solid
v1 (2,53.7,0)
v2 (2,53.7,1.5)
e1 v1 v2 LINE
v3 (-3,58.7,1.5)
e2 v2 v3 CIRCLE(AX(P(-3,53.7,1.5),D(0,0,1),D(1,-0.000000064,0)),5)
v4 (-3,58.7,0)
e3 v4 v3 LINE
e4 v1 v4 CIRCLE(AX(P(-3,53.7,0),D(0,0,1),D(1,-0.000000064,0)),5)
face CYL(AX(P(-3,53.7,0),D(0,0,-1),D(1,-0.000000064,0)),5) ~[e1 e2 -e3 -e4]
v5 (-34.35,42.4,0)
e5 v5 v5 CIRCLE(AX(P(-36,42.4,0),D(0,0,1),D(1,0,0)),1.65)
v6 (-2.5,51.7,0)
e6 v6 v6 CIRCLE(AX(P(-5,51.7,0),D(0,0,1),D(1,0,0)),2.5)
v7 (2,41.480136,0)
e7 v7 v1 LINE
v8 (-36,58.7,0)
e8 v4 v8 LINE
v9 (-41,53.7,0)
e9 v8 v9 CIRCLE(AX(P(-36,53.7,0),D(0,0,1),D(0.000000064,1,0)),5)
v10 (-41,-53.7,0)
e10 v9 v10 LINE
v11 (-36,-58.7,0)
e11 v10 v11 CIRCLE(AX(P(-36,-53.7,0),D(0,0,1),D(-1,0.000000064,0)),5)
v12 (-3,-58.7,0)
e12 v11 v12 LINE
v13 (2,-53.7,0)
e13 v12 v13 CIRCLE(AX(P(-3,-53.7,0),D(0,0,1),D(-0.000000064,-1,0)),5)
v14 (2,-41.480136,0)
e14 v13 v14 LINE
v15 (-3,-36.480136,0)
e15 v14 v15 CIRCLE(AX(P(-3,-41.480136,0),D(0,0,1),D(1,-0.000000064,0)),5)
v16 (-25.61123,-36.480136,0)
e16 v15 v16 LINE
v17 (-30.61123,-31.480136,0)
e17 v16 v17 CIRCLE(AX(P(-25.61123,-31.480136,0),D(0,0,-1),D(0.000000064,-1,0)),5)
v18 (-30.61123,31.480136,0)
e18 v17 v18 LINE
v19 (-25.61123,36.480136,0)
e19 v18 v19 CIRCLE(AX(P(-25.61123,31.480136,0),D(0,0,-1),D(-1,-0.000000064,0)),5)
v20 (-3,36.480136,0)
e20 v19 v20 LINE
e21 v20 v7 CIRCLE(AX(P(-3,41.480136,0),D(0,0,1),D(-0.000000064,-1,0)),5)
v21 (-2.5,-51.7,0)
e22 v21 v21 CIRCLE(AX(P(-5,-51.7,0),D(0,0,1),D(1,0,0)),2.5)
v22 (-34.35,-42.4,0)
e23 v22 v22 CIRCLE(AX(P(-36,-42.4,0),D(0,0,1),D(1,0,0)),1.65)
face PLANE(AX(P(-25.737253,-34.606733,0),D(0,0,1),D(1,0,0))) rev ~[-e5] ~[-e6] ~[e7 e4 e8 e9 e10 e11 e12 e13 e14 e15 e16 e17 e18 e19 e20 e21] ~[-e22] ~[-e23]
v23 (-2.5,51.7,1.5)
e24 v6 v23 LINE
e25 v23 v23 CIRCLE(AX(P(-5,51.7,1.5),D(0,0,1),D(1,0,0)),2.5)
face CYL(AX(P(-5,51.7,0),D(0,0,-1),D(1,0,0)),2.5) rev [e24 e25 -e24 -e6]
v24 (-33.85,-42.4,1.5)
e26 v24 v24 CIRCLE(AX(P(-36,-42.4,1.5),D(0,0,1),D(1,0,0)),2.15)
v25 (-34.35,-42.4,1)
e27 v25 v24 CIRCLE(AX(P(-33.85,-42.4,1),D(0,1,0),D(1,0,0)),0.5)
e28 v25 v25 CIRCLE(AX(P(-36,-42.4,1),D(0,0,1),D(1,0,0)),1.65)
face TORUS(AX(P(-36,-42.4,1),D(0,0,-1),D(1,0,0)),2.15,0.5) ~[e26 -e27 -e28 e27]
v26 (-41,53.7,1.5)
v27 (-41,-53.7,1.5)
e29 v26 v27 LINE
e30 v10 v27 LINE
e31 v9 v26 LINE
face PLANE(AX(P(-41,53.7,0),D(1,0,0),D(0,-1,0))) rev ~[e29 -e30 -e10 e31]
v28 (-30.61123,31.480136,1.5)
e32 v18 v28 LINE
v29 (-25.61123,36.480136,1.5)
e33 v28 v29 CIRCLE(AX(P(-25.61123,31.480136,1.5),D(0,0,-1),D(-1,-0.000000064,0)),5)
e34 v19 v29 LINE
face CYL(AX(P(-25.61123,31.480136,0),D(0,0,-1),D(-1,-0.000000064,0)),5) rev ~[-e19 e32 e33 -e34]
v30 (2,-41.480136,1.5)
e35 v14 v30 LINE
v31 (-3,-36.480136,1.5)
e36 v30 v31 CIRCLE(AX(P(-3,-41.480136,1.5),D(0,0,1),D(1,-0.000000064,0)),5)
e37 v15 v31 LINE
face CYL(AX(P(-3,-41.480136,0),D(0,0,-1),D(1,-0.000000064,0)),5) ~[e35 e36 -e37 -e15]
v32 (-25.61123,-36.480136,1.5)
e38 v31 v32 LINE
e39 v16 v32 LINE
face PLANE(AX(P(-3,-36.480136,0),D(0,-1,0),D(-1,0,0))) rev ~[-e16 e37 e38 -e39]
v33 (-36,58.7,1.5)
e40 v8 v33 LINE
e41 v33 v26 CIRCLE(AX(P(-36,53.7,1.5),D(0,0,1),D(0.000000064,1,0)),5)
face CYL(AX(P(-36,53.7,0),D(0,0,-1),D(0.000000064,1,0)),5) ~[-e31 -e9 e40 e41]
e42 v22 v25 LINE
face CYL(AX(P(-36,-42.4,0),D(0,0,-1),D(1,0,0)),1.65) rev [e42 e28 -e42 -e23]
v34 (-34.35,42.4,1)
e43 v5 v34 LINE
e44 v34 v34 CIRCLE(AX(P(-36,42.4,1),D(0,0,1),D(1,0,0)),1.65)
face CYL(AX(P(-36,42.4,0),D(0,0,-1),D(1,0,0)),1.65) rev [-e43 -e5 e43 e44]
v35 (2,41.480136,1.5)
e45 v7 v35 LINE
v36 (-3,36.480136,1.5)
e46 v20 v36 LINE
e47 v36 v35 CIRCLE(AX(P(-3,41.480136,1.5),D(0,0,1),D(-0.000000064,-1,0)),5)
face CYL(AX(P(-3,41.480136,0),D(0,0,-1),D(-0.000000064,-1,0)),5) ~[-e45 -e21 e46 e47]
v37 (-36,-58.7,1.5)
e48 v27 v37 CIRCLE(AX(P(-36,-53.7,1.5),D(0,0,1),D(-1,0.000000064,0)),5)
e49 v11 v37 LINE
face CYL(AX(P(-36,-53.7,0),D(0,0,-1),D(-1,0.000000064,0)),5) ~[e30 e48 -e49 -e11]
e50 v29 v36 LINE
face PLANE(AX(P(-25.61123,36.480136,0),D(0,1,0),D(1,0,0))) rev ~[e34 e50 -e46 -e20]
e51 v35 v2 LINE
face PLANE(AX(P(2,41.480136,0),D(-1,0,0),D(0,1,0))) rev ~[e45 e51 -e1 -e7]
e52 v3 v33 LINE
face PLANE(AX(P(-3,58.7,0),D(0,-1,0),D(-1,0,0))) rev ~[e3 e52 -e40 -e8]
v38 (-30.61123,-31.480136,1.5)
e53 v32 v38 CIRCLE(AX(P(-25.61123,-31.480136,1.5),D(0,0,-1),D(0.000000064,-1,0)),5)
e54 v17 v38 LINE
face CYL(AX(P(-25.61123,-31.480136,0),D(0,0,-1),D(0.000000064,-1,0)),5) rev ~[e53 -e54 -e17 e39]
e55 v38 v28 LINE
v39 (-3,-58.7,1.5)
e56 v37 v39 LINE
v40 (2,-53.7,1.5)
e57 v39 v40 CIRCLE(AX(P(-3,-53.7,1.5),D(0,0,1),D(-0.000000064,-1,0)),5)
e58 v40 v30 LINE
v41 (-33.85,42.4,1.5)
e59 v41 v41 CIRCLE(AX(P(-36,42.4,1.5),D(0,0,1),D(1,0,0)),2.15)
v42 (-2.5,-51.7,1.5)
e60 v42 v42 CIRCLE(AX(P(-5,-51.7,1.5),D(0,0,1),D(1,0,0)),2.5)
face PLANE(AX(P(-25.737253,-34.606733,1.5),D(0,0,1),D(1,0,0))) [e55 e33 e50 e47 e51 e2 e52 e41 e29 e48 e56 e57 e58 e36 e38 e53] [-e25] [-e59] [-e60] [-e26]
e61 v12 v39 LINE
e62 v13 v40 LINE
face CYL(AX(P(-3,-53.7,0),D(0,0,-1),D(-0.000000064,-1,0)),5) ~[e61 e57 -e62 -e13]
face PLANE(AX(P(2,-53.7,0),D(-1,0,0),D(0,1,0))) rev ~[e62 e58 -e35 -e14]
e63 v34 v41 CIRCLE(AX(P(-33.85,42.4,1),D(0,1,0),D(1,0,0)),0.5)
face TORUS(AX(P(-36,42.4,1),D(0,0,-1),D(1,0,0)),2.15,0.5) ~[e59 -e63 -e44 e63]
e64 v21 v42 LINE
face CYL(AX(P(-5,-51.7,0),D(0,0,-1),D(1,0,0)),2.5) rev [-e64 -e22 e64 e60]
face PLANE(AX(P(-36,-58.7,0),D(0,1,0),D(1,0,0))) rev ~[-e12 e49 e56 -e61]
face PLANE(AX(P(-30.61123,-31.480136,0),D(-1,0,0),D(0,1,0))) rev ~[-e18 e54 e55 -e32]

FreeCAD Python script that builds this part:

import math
import FreeCAD as App
import Part
import Sketcher

V = App.Vector
Q = App.Units.Quantity


def edges_at(feature, points):
    """Names of the edges that pass closest to the given points."""
    edges = feature.Shape.Edges
    near = lambda p: min(range(len(edges)), key=lambda i: edges[i].distToShape(Part.Vertex(*p))[0])
    return sorted({f"Edge{near(p) + 1}" for p in points})

doc = App.newDocument("Part")
body = doc.addObject("PartDesign::Body", "Body")

sketch1 = body.newObject("Sketcher::SketchObject", "Sketch")
sketch1.AttachmentSupport = (doc.getObject("XY_Plane"), [""])
sketch1.MapMode = "FlatFace"
sketch1.addGeometry([
    Part.LineSegment(V(-30.6, -31.5, 0), V(-30.6, 31.5, 0)),
    Part.ArcOfCircle(Part.Circle(V(-25.6, 31.5, 0), V(0, 0, 1), 5), math.radians(90), math.radians(180)),
    Part.LineSegment(V(-25.6, 36.5, 0), V(-3, 36.5, 0)),
    Part.ArcOfCircle(Part.Circle(V(-3, 41.5, 0), V(0, 0, 1), 5), math.radians(-90), math.radians(0)),
    Part.LineSegment(V(2, 41.5, 0), V(2, 53.7, 0)),
    Part.ArcOfCircle(Part.Circle(V(-3, 53.7, 0), V(0, 0, 1), 5), math.radians(0), math.radians(90)),
    Part.LineSegment(V(-3, 58.7, 0), V(-36, 58.7, 0)),
    Part.ArcOfCircle(Part.Circle(V(-36, 53.7, 0), V(0, 0, 1), 5), math.radians(90), math.radians(180)),
    Part.LineSegment(V(-41, 53.7, 0), V(-41, -53.7, 0)),
    Part.ArcOfCircle(Part.Circle(V(-36, -53.7, 0), V(0, 0, 1), 5), math.radians(180), math.radians(270)),
    Part.LineSegment(V(-36, -58.7, 0), V(-3, -58.7, 0)),
    Part.ArcOfCircle(Part.Circle(V(-3, -53.7, 0), V(0, 0, 1), 5), math.radians(-90), math.radians(0)),
    Part.LineSegment(V(2, -53.7, 0), V(2, -41.5, 0)),
    Part.ArcOfCircle(Part.Circle(V(-3, -41.5, 0), V(0, 0, 1), 5), math.radians(0), math.radians(90)),
    Part.LineSegment(V(-3, -36.5, 0), V(-25.6, -36.5, 0)),
    Part.ArcOfCircle(Part.Circle(V(-25.6, -31.5, 0), V(0, 0, 1), 5), math.radians(180), math.radians(270)),
    Part.Circle(V(-36, -42.4, 0), V(0, 0, 1), 1.6),
    Part.Circle(V(-5, -51.7, 0), V(0, 0, 1), 2.5),
    Part.Circle(V(-36, 42.4, 0), V(0, 0, 1), 1.6),
    Part.Circle(V(-5, 51.7, 0), V(0, 0, 1), 2.5),
], False)
sketch1.addConstraint([
    Sketcher.Constraint("Tangent", 0, 2, 1, 2),
    Sketcher.Constraint("Tangent", 1, 1, 2, 1),
    Sketcher.Constraint("Tangent", 2, 2, 3, 1),
    Sketcher.Constraint("Tangent", 3, 2, 4, 1),
    Sketcher.Constraint("Tangent", 4, 2, 5, 1),
    Sketcher.Constraint("Tangent", 5, 2, 6, 1),
    Sketcher.Constraint("Tangent", 6, 2, 7, 1),
    Sketcher.Constraint("Tangent", 7, 2, 8, 1),
    Sketcher.Constraint("Tangent", 8, 2, 9, 1),
    Sketcher.Constraint("Tangent", 9, 2, 10, 1),
    Sketcher.Constraint("Tangent", 10, 2, 11, 1),
    Sketcher.Constraint("Tangent", 11, 2, 12, 1),
    Sketcher.Constraint("Tangent", 12, 2, 13, 1),
    Sketcher.Constraint("Tangent", 13, 2, 14, 1),
    Sketcher.Constraint("Tangent", 14, 2, 15, 2),
    Sketcher.Constraint("Tangent", 15, 1, 0, 1),
    Sketcher.Constraint("Vertical", 0),
    Sketcher.Constraint("Horizontal", 2),
    Sketcher.Constraint("Vertical", 4),
    Sketcher.Constraint("Horizontal", 6),
    Sketcher.Constraint("Vertical", 8),
    Sketcher.Constraint("Horizontal", 10),
    Sketcher.Constraint("Vertical", 12),
    Sketcher.Constraint("Horizontal", 14),
    Sketcher.Constraint("Equal", 1, 3),
    Sketcher.Constraint("Equal", 3, 5),
    Sketcher.Constraint("Equal", 5, 7),
    Sketcher.Constraint("Equal", 7, 9),
    Sketcher.Constraint("Equal", 9, 11),
    Sketcher.Constraint("Equal", 11, 13),
    Sketcher.Constraint("Equal", 13, 15),
    Sketcher.Constraint("Equal", 16, 18),
    Sketcher.Constraint("Equal", 17, 19),
    Sketcher.Constraint("Symmetric", 5, 3, 11, 3, -1),
    Sketcher.Constraint("Symmetric", 16, 3, 18, 3, -1),
    Sketcher.Constraint("Symmetric", 17, 3, 19, 3, -1),
    Sketcher.Constraint("Vertical", 9, 3, 16, 3),
    Sketcher.Constraint("Equal", 4, 12),
    Sketcher.Constraint("Diameter", 17, Q("5 mm")),
    Sketcher.Constraint("Radius", 1, Q("5 mm")),
    Sketcher.Constraint("Diameter", 16, Q("3.3 mm")),
    Sketcher.Constraint("DistanceX", 6, 2, 6, 1, Q("33 mm")),
    Sketcher.Constraint("DistanceY", 8, 2, 8, 1, Q("107.4 mm")),
    Sketcher.Constraint("DistanceX", 3, 3, -1, 1, Q("3 mm")),
    Sketcher.Constraint("DistanceX", 17, 3, -1, 1, Q("5 mm")),
    Sketcher.Constraint("DistanceY", 11, 3, 17, 3, Q("2 mm")),
    Sketcher.Constraint("DistanceY", 16, 3, -1, 1, Q("42.4 mm")),
    Sketcher.Constraint("DistanceX", 2, 1, 2, 2, Q("22.61123 mm")),
    Sketcher.Constraint("DistanceY", 0, 1, 0, 2, Q("62.960272 mm")),
])
pad1 = body.newObject("PartDesign::Pad", "Pad")
pad1.Profile = sketch1
pad1.Length = 1.5
doc.recompute()

fillet = body.newObject("PartDesign::Fillet", "Fillet")
fillet.Base = (pad1, edges_at(pad1, [(-37.65, 42.4, 1.5), (-37.65, -42.4, 1.5)]))
fillet.Radius = 0.5

doc.recompute()
